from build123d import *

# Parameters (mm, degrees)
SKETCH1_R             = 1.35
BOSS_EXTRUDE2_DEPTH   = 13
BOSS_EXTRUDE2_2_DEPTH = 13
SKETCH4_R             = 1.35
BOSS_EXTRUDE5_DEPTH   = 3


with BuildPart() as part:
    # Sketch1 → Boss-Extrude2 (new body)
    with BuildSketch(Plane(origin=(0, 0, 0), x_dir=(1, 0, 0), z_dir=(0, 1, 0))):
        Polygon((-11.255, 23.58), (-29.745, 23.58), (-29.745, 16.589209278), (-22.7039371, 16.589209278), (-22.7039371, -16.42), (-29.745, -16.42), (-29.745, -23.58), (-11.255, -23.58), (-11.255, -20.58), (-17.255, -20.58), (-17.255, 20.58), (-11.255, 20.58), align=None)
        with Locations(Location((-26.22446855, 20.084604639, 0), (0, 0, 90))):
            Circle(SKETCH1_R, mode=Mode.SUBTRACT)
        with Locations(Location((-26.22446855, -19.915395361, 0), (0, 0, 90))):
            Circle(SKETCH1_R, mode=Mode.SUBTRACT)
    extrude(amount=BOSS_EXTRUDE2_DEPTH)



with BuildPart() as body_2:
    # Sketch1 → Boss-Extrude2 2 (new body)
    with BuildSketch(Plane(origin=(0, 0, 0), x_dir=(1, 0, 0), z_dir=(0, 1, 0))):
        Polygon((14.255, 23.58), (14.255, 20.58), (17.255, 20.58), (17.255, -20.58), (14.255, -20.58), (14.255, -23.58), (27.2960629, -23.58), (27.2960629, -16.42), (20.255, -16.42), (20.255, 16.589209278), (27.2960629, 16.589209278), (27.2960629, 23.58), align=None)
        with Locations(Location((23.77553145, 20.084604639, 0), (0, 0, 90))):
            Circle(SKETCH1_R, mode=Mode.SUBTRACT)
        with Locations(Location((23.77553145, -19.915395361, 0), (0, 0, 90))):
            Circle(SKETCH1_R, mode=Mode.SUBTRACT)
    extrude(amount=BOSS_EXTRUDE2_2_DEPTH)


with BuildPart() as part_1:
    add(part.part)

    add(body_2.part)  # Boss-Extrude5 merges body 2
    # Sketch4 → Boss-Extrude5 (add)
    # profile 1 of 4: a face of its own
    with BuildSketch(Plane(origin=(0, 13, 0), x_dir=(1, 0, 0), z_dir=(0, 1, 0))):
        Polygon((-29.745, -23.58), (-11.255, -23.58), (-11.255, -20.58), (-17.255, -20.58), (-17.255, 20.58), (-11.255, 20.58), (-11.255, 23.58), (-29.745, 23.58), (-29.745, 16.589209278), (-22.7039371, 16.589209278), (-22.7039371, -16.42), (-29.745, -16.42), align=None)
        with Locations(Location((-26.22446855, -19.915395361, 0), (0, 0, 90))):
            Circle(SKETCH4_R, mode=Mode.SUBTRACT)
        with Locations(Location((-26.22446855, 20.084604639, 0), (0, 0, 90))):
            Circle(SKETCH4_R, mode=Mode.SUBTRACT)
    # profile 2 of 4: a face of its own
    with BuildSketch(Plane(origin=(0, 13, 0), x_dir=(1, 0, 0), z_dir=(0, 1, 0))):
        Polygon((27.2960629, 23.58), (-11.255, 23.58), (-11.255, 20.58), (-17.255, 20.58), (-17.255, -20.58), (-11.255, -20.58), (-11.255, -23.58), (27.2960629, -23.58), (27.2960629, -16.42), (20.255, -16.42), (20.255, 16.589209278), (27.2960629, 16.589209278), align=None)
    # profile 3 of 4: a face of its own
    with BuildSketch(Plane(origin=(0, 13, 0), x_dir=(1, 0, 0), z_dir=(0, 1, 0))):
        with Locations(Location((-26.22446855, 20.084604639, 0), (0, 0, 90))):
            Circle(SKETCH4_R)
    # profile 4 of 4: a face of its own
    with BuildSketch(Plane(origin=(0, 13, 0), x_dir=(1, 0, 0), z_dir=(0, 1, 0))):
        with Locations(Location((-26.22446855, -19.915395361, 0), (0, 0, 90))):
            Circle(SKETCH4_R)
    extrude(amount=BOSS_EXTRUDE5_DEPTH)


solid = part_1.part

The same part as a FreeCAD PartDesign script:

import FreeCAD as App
import Part
import Sketcher

V = App.Vector

doc = App.newDocument("Part")
body = doc.addObject("PartDesign::Body", "Body")

# Sketch on XZ plane
sketch1 = doc.addObject("Sketcher::SketchObject", "Sketch")
body.addObject(sketch1)
sketch1.AttachmentSupport = (doc.XZ_Plane, [""])
sketch1.MapMode = "FlatFace"
sketch1.addGeometry([
    Part.LineSegment(V(-11.3, -23.6, 0), V(-29.7, -23.6, 0)),  # 0
    Part.LineSegment(V(-29.7, -23.6, 0), V(-29.7, -16.6, 0)),  # 1
    Part.LineSegment(V(-29.7, -16.6, 0), V(-22.7, -16.6, 0)),  # 2
    Part.LineSegment(V(-22.7, -16.6, 0), V(-22.7, 16.4, 0)),  # 3
    Part.LineSegment(V(-22.7, 16.4, 0), V(-29.7, 16.4, 0)),  # 4
    Part.LineSegment(V(-29.7, 16.4, 0), V(-29.7, 23.6, 0)),  # 5
    Part.LineSegment(V(-29.7, 23.6, 0), V(-11.3, 23.6, 0)),  # 6
    Part.LineSegment(V(-11.3, 23.6, 0), V(-11.3, 20.6, 0)),  # 7
    Part.LineSegment(V(-11.3, 20.6, 0), V(-17.3, 20.6, 0)),  # 8
    Part.LineSegment(V(-17.3, 20.6, 0), V(-17.3, -20.6, 0)),  # 9
    Part.LineSegment(V(-17.3, -20.6, 0), V(-11.3, -20.6, 0)),  # 10
    Part.LineSegment(V(-11.3, -20.6, 0), V(-11.3, -23.6, 0)),  # 11
    Part.Circle(V(-26.2, 19.9, 0), V(0, 0, 1), 1.4),  # 12
    Part.Circle(V(-26.2, -20.1, 0), V(0, 0, 1), 1.4),  # 13
], False)
sketch1.addConstraint([
    Sketcher.Constraint("Coincident", 0, 2, 1, 1),
    Sketcher.Constraint("Coincident", 1, 2, 2, 1),
    Sketcher.Constraint("Coincident", 2, 2, 3, 1),
    Sketcher.Constraint("Coincident", 3, 2, 4, 1),
    Sketcher.Constraint("Coincident", 4, 2, 5, 1),
    Sketcher.Constraint("Coincident", 5, 2, 6, 1),
    Sketcher.Constraint("Coincident", 6, 2, 7, 1),
    Sketcher.Constraint("Coincident", 7, 2, 8, 1),
    Sketcher.Constraint("Coincident", 8, 2, 9, 1),
    Sketcher.Constraint("Coincident", 9, 2, 10, 1),
    Sketcher.Constraint("Coincident", 10, 2, 11, 1),
    Sketcher.Constraint("Coincident", 11, 2, 0, 1),
    Sketcher.Constraint("Horizontal", 0),
    Sketcher.Constraint("Vertical", 1),
    Sketcher.Constraint("Horizontal", 2),
    Sketcher.Constraint("Vertical", 3),
    Sketcher.Constraint("Horizontal", 4),
    Sketcher.Constraint("Vertical", 5),
    Sketcher.Constraint("Horizontal", 6),
    Sketcher.Constraint("Vertical", 7),
    Sketcher.Constraint("Horizontal", 8),
    Sketcher.Constraint("Vertical", 9),
    Sketcher.Constraint("Horizontal", 10),
    Sketcher.Constraint("Vertical", 11),
    Sketcher.Constraint("Equal", 12, 13),
    Sketcher.Constraint("Symmetric", 0, 2, 5, 2, -1),
    Sketcher.Constraint("Symmetric", 7, 2, 10, 2, -1),
    Sketcher.Constraint("Vertical", 12, 3, 13, 3),
    Sketcher.Constraint("Diameter", 12, 2.7),
    Sketcher.Constraint("DistanceX", 8, 2, 8, 1, 6.0),
    Sketcher.Constraint("DistanceY", 7, 2, 7, 1, 3.0),
    Sketcher.Constraint("DistanceY", 13, 3, 12, 3, 40.0),
    Sketcher.Constraint("DistanceY", 0, 2, 3, 2, 40.0),
    Sketcher.Constraint("DistanceX", 0, 2, 0, 1, 18.49),
    Sketcher.Constraint("DistanceY", 5, 1, 5, 2, 7.16),
    Sketcher.Constraint("DistanceX", 0, 2, -1, 1, 29.745),
    Sketcher.Constraint("DistanceY", 1, 1, 1, 2, 6.990791),
    Sketcher.Constraint("DistanceX", 2, 1, 2, 2, 7.041063),
    Sketcher.Constraint("DistanceX", 12, 3, -1, 1, 26.224469),
    Sketcher.Constraint("DistanceY", -1, 1, 12, 3, 19.915395),
])
pad1 = doc.addObject("PartDesign::Pad", "Pad")
body.addObject(pad1)
pad1.Profile = sketch1
pad1.Length = 13
pad1.Reversed = True
body2 = doc.addObject("PartDesign::Body", "Body001")

# Sketch on XZ plane
sketch2 = doc.addObject("Sketcher::SketchObject", "Sketch001")
body2.addObject(sketch2)
sketch2.AttachmentSupport = (doc.getObject("XZ_Plane001"), [""])
sketch2.MapMode = "FlatFace"
sketch2.addGeometry([
    Part.LineSegment(V(14.3, -23.6, 0), V(14.3, -20.6, 0)),  # 0
    Part.LineSegment(V(14.3, -20.6, 0), V(17.3, -20.6, 0)),  # 1
    Part.LineSegment(V(17.3, -20.6, 0), V(17.3, 20.6, 0)),  # 2
    Part.LineSegment(V(17.3, 20.6, 0), V(14.3, 20.6, 0)),  # 3
    Part.LineSegment(V(14.3, 20.6, 0), V(14.3, 23.6, 0)),  # 4
    Part.LineSegment(V(14.3, 23.6, 0), V(27.3, 23.6, 0)),  # 5
    Part.LineSegment(V(27.3, 23.6, 0), V(27.3, 16.4, 0)),  # 6
    Part.LineSegment(V(27.3, 16.4, 0), V(20.3, 16.4, 0)),  # 7
    Part.LineSegment(V(20.3, 16.4, 0), V(20.3, -16.6, 0)),  # 8
    Part.LineSegment(V(20.3, -16.6, 0), V(27.3, -16.6, 0)),  # 9
    Part.LineSegment(V(27.3, -16.6, 0), V(27.3, -23.6, 0)),  # 10
    Part.LineSegment(V(27.3, -23.6, 0), V(14.3, -23.6, 0)),  # 11
    Part.Circle(V(23.8, 19.9, 0), V(0, 0, 1), 1.4),  # 12
    Part.Circle(V(23.8, -20.1, 0), V(0, 0, 1), 1.4),  # 13
], False)
sketch2.addConstraint([
    Sketcher.Constraint("Coincident", 0, 2, 1, 1),
    Sketcher.Constraint("Coincident", 1, 2, 2, 1),
    Sketcher.Constraint("Coincident", 2, 2, 3, 1),
    Sketcher.Constraint("Coincident", 3, 2, 4, 1),
    Sketcher.Constraint("Coincident", 4, 2, 5, 1),
    Sketcher.Constraint("Coincident", 5, 2, 6, 1),
    Sketcher.Constraint("Coincident", 6, 2, 7, 1),
    Sketcher.Constraint("Coincident", 7, 2, 8, 1),
    Sketcher.Constraint("Coincident", 8, 2, 9, 1),
    Sketcher.Constraint("Coincident", 9, 2, 10, 1),
    Sketcher.Constraint("Coincident", 10, 2, 11, 1),
    Sketcher.Constraint("Coincident", 11, 2, 0, 1),
    Sketcher.Constraint("Vertical", 0),
    Sketcher.Constraint("Horizontal", 1),
    Sketcher.Constraint("Vertical", 2),
    Sketcher.Constraint("Horizontal", 3),
    Sketcher.Constraint("Vertical", 4),
    Sketcher.Constraint("Horizontal", 5),
    Sketcher.Constraint("Vertical", 6),
    Sketcher.Constraint("Horizontal", 7),
    Sketcher.Constraint("Vertical", 8),
    Sketcher.Constraint("Horizontal", 9),
    Sketcher.Constraint("Vertical", 10),
    Sketcher.Constraint("Horizontal", 11),
    Sketcher.Constraint("Equal", 12, 13),
    Sketcher.Constraint("Symmetric", 0, 2, 3, 2, -1),
    Sketcher.Constraint("Symmetric", 5, 2, 10, 2, -1),
    Sketcher.Constraint("Vertical", 12, 3, 13, 3),
    Sketcher.Constraint("Equal", 3, 0),
    Sketcher.Constraint("Diameter", 12, 2.7),
    Sketcher.Constraint("DistanceX", 1, 1, 1, 2, 3.0),
    Sketcher.Constraint("DistanceY", 13, 3, 12, 3, 40.0),
    Sketcher.Constraint("DistanceX", 2, 2, 7, 2, 3.0),
    Sketcher.Constraint("DistanceY", 2, 1, 2, 2, 41.16),
    Sketcher.Constraint("DistanceY", 6, 2, 6, 1, 7.16),
    Sketcher.Constraint("DistanceX", -1, 1, 0, 2, 14.255),
    Sketcher.Constraint("DistanceY", 8, 2, 8, 1, 33.009209),
    Sketcher.Constraint("DistanceX", 5, 1, 5, 2, 13.041063),
    Sketcher.Constraint("DistanceX", -1, 1, 12, 3, 23.775531),
    Sketcher.Constraint("DistanceY", -1, 1, 12, 3, 19.915395),
])
pad2 = doc.addObject("PartDesign::Pad", "Pad001")
body2.addObject(pad2)
pad2.Profile = sketch2
pad2.Length = 13
pad2.Reversed = True
body.AllowCompound = True
doc.recompute()

boolean = doc.addObject("PartDesign::Boolean", "Boolean")
body.addObject(boolean)
boolean.Type = "Fuse"
boolean.addObjects([body2])

# Sketch on XZ plane
sketch3 = doc.addObject("Sketcher::SketchObject", "Sketch002")
body.addObject(sketch3)
sketch3.AttachmentSupport = (doc.XZ_Plane, [""])
sketch3.MapMode = "FlatFace"
sketch3.AttachmentOffset = App.Placement(V(0, 0, -13), App.Rotation())
sketch3.addGeometry([
    Part.LineSegment(V(-30, 24, 0), V(27, 24, 0)),  # 0
    Part.LineSegment(V(27, 24, 0), V(27, 16, 0)),  # 1
    Part.LineSegment(V(27, 16, 0), V(20, 16, 0)),  # 2
    Part.LineSegment(V(20, 16, 0), V(20, -17, 0)),  # 3
    Part.LineSegment(V(20, -17, 0), V(27, -17, 0)),  # 4
    Part.LineSegment(V(27, -17, 0), V(27, -24, 0)),  # 5
    Part.LineSegment(V(27, -24, 0), V(-30, -24, 0)),  # 6
    Part.LineSegment(V(-30, -24, 0), V(-30, -17, 0)),  # 7
    Part.LineSegment(V(-30, -17, 0), V(-23, -17, 0)),  # 8
    Part.LineSegment(V(-23, -17, 0), V(-23, 16, 0)),  # 9
    Part.LineSegment(V(-23, 16, 0), V(-30, 16, 0)),  # 10
    Part.LineSegment(V(-30, 16, 0), V(-30, 24, 0)),  # 11
], False)
sketch3.addConstraint([
    Sketcher.Constraint("Coincident", 0, 2, 1, 1),
    Sketcher.Constraint("Coincident", 1, 2, 2, 1),
    Sketcher.Constraint("Coincident", 2, 2, 3, 1),
    Sketcher.Constraint("Coincident", 3, 2, 4, 1),
    Sketcher.Constraint("Coincident", 4, 2, 5, 1),
    Sketcher.Constraint("Coincident", 5, 2, 6, 1),
    Sketcher.Constraint("Coincident", 6, 2, 7, 1),
    Sketcher.Constraint("Coincident", 7, 2, 8, 1),
    Sketcher.Constraint("Coincident", 8, 2, 9, 1),
    Sketcher.Constraint("Coincident", 9, 2, 10, 1),
    Sketcher.Constraint("Coincident", 10, 2, 11, 1),
    Sketcher.Constraint("Coincident", 11, 2, 0, 1),
    Sketcher.Constraint("Horizontal", 0),
    Sketcher.Constraint("Vertical", 1),
    Sketcher.Constraint("Horizontal", 2),
    Sketcher.Constraint("Vertical", 3),
    Sketcher.Constraint("Horizontal", 4),
    Sketcher.Constraint("Vertical", 5),
    Sketcher.Constraint("Horizontal", 6),
    Sketcher.Constraint("Vertical", 7),
    Sketcher.Constraint("Horizontal", 8),
    Sketcher.Constraint("Vertical", 9),
    Sketcher.Constraint("Horizontal", 10),
    Sketcher.Constraint("Vertical", 11),
    Sketcher.Constraint("Symmetric", 0, 2, 5, 2, -1),
    Sketcher.Constraint("Horizontal", 4, 2, 7, 2),
    Sketcher.Constraint("Horizontal", 2, 2, 9, 2),
    Sketcher.Constraint("Vertical", 7, 2, 10, 2),
    Sketcher.Constraint("Equal", 4, 8),
    Sketcher.Constraint("DistanceY", 5, 2, 1, 2, 40.0),
    Sketcher.Constraint("DistanceX", 6, 2, 3, 2, 50.0),
    Sketcher.Constraint("DistanceY", 1, 2, 1, 1, 7.16),
    Sketcher.Constraint("DistanceX", -1, 1, 2, 2, 20.255),
    Sketcher.Constraint("DistanceY", 3, 2, 3, 1, 33.009209),
    Sketcher.Constraint("DistanceX", 0, 1, 0, 2, 57.041063),
])
pad3 = doc.addObject("PartDesign::Pad", "Pad002")
body.addObject(pad3)
pad3.Profile = sketch3
pad3.Length = 3
pad3.Reversed = True

doc.recompute()
